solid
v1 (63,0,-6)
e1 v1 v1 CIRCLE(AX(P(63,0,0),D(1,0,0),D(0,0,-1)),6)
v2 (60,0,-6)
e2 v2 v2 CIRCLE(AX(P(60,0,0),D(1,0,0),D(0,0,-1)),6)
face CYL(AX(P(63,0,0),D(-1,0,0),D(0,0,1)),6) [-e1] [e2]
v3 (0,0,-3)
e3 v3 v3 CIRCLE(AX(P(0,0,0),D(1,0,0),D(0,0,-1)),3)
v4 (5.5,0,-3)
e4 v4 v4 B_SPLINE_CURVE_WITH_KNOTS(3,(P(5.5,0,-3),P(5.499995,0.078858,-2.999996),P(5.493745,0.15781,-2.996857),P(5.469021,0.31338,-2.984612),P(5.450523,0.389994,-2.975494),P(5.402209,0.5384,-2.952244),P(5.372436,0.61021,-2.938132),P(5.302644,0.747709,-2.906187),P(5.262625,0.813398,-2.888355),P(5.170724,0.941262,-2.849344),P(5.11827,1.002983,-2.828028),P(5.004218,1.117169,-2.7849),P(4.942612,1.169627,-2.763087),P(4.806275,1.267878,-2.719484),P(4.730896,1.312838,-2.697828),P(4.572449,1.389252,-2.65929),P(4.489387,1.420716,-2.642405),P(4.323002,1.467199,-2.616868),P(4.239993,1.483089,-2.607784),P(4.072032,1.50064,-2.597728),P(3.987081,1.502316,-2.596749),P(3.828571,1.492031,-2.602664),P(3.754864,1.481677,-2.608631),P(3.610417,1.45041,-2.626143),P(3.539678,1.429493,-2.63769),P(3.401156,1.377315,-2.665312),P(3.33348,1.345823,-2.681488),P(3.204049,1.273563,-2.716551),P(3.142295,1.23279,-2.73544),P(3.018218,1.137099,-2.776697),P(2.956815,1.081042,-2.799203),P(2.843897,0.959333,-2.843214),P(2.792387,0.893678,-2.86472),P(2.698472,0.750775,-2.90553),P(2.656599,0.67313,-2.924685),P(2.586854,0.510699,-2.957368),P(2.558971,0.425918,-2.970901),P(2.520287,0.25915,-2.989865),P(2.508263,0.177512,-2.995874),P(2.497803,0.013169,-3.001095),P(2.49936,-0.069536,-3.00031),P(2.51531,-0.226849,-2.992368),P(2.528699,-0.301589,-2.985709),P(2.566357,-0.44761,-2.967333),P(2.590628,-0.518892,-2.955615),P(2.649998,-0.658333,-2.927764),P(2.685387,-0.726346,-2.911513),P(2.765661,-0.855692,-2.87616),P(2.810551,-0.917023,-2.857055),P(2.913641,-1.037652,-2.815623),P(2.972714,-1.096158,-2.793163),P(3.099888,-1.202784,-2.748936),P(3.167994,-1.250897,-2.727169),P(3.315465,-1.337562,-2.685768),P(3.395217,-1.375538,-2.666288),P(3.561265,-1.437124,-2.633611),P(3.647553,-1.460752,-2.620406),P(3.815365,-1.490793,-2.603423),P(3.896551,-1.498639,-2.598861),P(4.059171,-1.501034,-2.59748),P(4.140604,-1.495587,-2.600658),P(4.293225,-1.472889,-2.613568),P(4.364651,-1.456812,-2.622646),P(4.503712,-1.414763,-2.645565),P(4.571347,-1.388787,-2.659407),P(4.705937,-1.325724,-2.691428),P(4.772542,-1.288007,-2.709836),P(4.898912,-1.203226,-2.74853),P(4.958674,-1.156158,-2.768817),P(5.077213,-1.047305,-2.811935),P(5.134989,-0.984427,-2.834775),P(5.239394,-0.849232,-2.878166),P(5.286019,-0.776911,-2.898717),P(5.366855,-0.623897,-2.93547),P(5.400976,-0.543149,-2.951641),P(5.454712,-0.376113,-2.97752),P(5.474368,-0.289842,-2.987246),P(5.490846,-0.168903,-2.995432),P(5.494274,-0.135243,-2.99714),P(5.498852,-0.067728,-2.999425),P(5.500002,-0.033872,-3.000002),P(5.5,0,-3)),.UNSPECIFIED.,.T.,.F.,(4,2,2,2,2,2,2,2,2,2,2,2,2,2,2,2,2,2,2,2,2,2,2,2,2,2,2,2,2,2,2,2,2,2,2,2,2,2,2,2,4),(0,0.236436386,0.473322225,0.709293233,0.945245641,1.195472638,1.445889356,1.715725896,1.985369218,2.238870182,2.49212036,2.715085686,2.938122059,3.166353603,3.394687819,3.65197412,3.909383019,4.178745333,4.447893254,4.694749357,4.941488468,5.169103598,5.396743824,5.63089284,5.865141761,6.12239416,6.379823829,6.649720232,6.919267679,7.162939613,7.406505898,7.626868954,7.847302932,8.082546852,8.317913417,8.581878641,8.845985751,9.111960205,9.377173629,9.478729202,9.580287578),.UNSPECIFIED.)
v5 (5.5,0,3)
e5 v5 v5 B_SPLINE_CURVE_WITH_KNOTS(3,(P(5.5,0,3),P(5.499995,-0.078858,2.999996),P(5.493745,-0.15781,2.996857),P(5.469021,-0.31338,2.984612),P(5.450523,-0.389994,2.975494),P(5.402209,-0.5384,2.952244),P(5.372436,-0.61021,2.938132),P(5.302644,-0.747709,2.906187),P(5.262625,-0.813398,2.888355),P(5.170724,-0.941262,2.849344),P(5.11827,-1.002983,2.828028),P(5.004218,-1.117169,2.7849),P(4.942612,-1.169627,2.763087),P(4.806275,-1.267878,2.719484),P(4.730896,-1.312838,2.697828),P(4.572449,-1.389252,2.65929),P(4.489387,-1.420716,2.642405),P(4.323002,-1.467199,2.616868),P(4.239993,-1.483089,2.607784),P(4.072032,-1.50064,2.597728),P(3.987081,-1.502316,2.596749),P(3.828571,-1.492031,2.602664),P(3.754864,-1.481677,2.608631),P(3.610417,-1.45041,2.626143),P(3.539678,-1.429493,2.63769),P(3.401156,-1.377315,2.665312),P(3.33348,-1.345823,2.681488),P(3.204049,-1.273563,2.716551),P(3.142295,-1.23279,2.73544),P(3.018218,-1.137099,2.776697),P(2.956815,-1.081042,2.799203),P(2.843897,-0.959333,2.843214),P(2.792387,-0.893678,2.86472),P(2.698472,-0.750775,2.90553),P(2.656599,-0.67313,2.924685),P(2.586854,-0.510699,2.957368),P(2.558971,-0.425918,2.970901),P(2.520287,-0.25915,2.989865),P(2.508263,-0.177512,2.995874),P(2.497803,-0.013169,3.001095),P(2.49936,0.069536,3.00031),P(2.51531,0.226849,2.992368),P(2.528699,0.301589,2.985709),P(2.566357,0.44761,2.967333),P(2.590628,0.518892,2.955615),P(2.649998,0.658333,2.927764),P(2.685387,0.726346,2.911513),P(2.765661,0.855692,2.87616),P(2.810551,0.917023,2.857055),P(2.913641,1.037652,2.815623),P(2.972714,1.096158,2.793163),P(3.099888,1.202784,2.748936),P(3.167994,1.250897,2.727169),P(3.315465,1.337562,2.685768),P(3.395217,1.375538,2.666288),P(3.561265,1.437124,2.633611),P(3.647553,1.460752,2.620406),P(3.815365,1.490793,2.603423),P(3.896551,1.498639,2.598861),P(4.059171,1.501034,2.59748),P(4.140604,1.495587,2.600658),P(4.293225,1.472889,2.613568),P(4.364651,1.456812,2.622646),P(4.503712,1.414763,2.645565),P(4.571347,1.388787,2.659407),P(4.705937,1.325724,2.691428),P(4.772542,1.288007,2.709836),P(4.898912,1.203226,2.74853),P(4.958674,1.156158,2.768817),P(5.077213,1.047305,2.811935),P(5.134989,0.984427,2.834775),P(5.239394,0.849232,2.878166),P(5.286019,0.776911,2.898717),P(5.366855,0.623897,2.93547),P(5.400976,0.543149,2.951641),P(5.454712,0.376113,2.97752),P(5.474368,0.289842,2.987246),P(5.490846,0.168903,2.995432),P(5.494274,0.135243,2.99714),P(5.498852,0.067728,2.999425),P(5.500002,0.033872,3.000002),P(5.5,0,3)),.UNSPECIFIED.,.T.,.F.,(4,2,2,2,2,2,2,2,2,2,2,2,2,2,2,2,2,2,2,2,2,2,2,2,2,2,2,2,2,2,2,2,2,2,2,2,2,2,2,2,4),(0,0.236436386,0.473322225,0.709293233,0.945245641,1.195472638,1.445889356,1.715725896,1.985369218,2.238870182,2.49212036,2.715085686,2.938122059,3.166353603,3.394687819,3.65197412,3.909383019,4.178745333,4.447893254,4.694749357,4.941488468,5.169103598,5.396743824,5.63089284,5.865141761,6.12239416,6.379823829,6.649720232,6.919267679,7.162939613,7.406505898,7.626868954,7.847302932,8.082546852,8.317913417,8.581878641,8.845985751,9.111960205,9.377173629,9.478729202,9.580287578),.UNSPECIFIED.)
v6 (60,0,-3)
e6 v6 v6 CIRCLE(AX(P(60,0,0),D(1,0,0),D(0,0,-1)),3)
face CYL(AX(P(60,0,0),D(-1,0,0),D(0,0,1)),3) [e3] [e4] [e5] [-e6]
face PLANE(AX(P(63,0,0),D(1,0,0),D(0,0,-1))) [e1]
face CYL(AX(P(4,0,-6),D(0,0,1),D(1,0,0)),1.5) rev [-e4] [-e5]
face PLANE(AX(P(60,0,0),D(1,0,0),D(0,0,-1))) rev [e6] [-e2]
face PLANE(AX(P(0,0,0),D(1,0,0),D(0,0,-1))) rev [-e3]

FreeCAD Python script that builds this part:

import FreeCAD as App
import Part
import Sketcher
from FreeCAD import Vector
Q = App.Units.Quantity

doc = App.newDocument("Part")
body = doc.addObject("PartDesign::Body", "Body")

sketch1 = doc.addObject("Sketcher::SketchObject", "Sketch")
body.addObject(sketch1)
sketch1.AttachmentSupport = (doc.YZ_Plane, [""])
sketch1.MapMode = "FlatFace"
sketch1.addGeometry(Part.Circle(Vector(0, 0, 0), Vector(0, 0, 1), 3), False)
sketch1.addConstraint([
    Sketcher.Constraint("Coincident", 0, 3, -1, 1),
    Sketcher.Constraint("Diameter", 0, Q("6 mm")),
])
pad1 = doc.addObject("PartDesign::Pad", "Pad")
body.addObject(pad1)
pad1.Profile = sketch1
pad1.Length = 60

sketch2 = doc.addObject("Sketcher::SketchObject", "Sketch001")
body.addObject(sketch2)
sketch2.AttachmentSupport = (doc.YZ_Plane, [""])
sketch2.MapMode = "FlatFace"
sketch2.AttachmentOffset = App.Placement(Vector(0, 0, 60), App.Rotation())
sketch2.addGeometry(Part.Circle(Vector(0, 0, 0), Vector(0, 0, 1), 6), False)
sketch2.addConstraint([
    Sketcher.Constraint("Coincident", 0, 3, -1, 1),
    Sketcher.Constraint("Diameter", 0, Q("12 mm")),
])
pad2 = doc.addObject("PartDesign::Pad", "Pad001")
body.addObject(pad2)
pad2.Profile = sketch2
pad2.Length = 3

sketch3 = doc.addObject("Sketcher::SketchObject", "Sketch002")
body.addObject(sketch3)
sketch3.AttachmentSupport = (doc.XY_Plane, [""])
sketch3.MapMode = "FlatFace"
sketch3.addGeometry(Part.Circle(Vector(4, 0, 0), Vector(0, 0, 1), 1.5), False)
sketch3.addConstraint([
    Sketcher.Constraint("PointOnObject", 0, 3, -1),
    Sketcher.Constraint("Diameter", 0, Q("3 mm")),
    Sketcher.Constraint("DistanceX", -1, 1, 0, 3, Q("4 mm")),
])
pocket1 = doc.addObject("PartDesign::Pocket", "Pocket")
body.addObject(pocket1)
pocket1.Profile = sketch3
pocket1.Type = "ThroughAll"
pocket1.Midplane = True

doc.recompute()
